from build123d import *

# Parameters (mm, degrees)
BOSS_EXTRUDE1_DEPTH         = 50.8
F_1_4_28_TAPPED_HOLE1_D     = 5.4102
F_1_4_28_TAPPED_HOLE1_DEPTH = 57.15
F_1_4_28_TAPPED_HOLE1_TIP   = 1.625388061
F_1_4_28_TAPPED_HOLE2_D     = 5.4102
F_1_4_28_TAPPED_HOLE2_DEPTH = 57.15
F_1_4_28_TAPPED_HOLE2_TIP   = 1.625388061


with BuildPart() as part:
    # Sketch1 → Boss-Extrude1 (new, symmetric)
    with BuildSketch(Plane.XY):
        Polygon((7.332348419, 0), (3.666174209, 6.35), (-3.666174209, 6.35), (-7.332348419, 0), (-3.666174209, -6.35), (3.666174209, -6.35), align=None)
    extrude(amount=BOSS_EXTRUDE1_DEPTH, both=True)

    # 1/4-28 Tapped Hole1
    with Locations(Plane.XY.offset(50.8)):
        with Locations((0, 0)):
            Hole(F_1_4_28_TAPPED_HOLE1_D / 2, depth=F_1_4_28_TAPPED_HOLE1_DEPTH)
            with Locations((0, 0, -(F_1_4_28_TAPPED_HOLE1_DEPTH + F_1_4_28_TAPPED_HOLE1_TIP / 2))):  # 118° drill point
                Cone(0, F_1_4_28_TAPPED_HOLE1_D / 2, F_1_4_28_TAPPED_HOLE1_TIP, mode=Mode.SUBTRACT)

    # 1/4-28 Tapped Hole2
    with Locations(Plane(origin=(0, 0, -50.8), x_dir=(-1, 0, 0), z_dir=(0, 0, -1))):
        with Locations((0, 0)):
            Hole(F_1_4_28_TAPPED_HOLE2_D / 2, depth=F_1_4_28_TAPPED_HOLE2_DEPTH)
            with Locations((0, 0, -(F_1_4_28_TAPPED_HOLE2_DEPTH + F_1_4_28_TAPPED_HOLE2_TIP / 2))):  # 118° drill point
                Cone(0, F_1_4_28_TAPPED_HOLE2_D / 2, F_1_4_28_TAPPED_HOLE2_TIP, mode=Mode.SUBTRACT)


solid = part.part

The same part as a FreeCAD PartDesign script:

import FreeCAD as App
import Part
import Sketcher

V = App.Vector
Q = App.Units.Quantity


def add_polygon(sketch, points):
    """Adds a closed chain of lines whose ends are joined by coincident constraints."""
    first, n = sketch.GeometryCount, len(points)
    for a, b in zip(points, points[1:] + points[:1]):
        sketch.addGeometry(Part.LineSegment(App.Vector(*a, 0), App.Vector(*b, 0)), False)
    for i in range(n):
        sketch.addConstraint(Sketcher.Constraint("Coincident", first + i, 2, first + (i + 1) % n, 1))

doc = App.newDocument("Part")
body = doc.addObject("PartDesign::Body", "Body")

# Sketch on XY plane
sketch1 = body.newObject("Sketcher::SketchObject", "Sketch")
sketch1.AttachmentSupport = (doc.getObject("XY_Plane"), [""])
sketch1.MapMode = "FlatFace"
add_polygon(sketch1, [(7, 0), (4, 6), (-4, 6), (-7, 0), (-4, -6), (4, -6)])  # lines 0-5
sketch1.addConstraint(Sketcher.Constraint("Horizontal", 1))
sketch1.addConstraint(Sketcher.Constraint("Horizontal", 4))
sketch1.addConstraint(Sketcher.Constraint("Symmetric", 0, 2, 3, 2, -1, 1))
sketch1.addConstraint(Sketcher.Constraint("Symmetric", 2, 2, 5, 2, -1, 1))
sketch1.addConstraint(Sketcher.Constraint("PointOnObject", 2, 2, -1))
sketch1.addConstraint(Sketcher.Constraint("Parallel", 2, 5))
sketch1.addConstraint(Sketcher.Constraint("Vertical", 1, 2, 3, 2))
sketch1.addConstraint(Sketcher.Constraint("Angle", 0, Q("120 deg")))
sketch1.addConstraint(Sketcher.Constraint("DistanceY", 3, 2, 1, 2, Q("0.5 in")))
sketch1.addConstraint(Sketcher.Constraint("DistanceX", 1, 2, 1, 1, 7.332348))
pad1 = body.newObject("PartDesign::Pad", "Pad")
pad1.Profile = sketch1
pad1.Length = Q("4 in")
pad1.Midplane = True

# Sketch on XY plane
sketch2 = body.newObject("Sketcher::SketchObject", "Sketch001")
sketch2.AttachmentSupport = (doc.getObject("XY_Plane"), [""])
sketch2.MapMode = "FlatFace"
sketch2.AttachmentOffset = App.Placement(V(0, 0, 2 * 25.4), App.Rotation())
sketch2.addGeometry(Part.Circle(V(0, 0, 0), V(0, 0, 1), 2.7), False)
sketch2.addConstraint(Sketcher.Constraint("Coincident", 0, 3, -1, 1))
sketch2.addConstraint(Sketcher.Constraint("Diameter", 0, Q("0.213 in")))
doc.recompute()
hole = body.newObject("PartDesign::Hole", "Hole")
hole.Profile = sketch2
hole.ThreadType = "None"
hole.Diameter = Q("0.213 in")
hole.DepthType = "Dimension"
hole.Depth = Q("2.25 in")
hole.DrillPoint = "Angled"
hole.DrillPointAngle = 118

# Sketch on XY plane
sketch3 = body.newObject("Sketcher::SketchObject", "Sketch002")
sketch3.AttachmentSupport = (doc.getObject("XY_Plane"), [""])
sketch3.MapMode = "FlatFace"
sketch3.AttachmentOffset = App.Placement(V(0, 0, -2 * 25.4), App.Rotation())
sketch3.addGeometry(Part.Circle(V(0, 0, 0), V(0, 0, 1), 2.7), False)
sketch3.addConstraint(Sketcher.Constraint("Coincident", 0, 3, -1, 1))
sketch3.addConstraint(Sketcher.Constraint("Diameter", 0, Q("0.213 in")))
doc.recompute()
hole2 = body.newObject("PartDesign::Hole", "Hole001")
hole2.Profile = sketch3
hole2.ThreadType = "None"
hole2.Diameter = Q("0.213 in")
hole2.DepthType = "Dimension"
hole2.Depth = Q("2.25 in")
hole2.DrillPoint = "Angled"
hole2.DrillPointAngle = 118
hole2.Reversed = True

doc.recompute()
